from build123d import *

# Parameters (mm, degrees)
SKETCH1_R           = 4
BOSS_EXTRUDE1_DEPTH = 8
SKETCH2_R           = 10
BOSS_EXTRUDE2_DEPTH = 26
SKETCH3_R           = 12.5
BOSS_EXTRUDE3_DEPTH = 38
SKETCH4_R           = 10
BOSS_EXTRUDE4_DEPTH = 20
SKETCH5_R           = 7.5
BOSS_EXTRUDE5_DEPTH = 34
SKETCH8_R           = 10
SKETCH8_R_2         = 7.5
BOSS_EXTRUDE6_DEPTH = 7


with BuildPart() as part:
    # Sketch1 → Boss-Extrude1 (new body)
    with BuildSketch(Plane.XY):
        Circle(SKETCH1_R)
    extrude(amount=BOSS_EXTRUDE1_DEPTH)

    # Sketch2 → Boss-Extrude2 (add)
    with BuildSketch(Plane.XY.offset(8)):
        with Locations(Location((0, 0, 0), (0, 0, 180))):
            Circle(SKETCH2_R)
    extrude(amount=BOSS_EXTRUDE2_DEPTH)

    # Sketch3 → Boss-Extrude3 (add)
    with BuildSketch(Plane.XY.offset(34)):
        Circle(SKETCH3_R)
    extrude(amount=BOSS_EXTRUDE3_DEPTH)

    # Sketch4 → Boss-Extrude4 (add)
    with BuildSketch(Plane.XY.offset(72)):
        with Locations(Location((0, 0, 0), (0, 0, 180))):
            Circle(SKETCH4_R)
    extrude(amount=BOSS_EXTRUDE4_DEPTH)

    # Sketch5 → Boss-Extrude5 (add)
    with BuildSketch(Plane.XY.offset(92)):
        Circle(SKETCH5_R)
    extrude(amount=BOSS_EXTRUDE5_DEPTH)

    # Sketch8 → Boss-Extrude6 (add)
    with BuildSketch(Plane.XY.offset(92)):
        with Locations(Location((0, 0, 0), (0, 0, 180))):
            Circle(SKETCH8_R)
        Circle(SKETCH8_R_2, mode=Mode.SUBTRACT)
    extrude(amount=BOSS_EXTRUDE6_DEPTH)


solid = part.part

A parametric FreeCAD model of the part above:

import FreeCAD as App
import Part
import Sketcher
from FreeCAD import Vector
Q = App.Units.Quantity

doc = App.newDocument("Part")
body = doc.addObject("PartDesign::Body", "Body")

# Sketch on XY plane
sketch1 = body.newObject("Sketcher::SketchObject", "Sketch")
sketch1.AttachmentSupport = (doc.getObject("XY_Plane"), [""])
sketch1.MapMode = "FlatFace"
sketch1.addGeometry(Part.Circle(Vector(0, 0, 0), Vector(0, 0, 1), 4), False)
sketch1.addConstraint([
    Sketcher.Constraint("Coincident", 0, 3, -1, 1),
    Sketcher.Constraint("Diameter", 0, Q("8 mm")),
])
pad1 = body.newObject("PartDesign::Pad", "Pad")
pad1.Profile = sketch1
pad1.Length = 8

# Sketch on XY plane
sketch2 = body.newObject("Sketcher::SketchObject", "Sketch001")
sketch2.AttachmentSupport = (doc.getObject("XY_Plane"), [""])
sketch2.MapMode = "FlatFace"
sketch2.AttachmentOffset = App.Placement(Vector(0, 0, 8), App.Rotation())
sketch2.addGeometry(Part.Circle(Vector(0, 0, 0), Vector(0, 0, 1), 10), False)
sketch2.addConstraint([
    Sketcher.Constraint("Coincident", 0, 3, -1, 1),
    Sketcher.Constraint("Diameter", 0, Q("20 mm")),
])
pad2 = body.newObject("PartDesign::Pad", "Pad001")
pad2.Profile = sketch2
pad2.Length = 26

# Sketch on XY plane
sketch3 = body.newObject("Sketcher::SketchObject", "Sketch002")
sketch3.AttachmentSupport = (doc.getObject("XY_Plane"), [""])
sketch3.MapMode = "FlatFace"
sketch3.AttachmentOffset = App.Placement(Vector(0, 0, 34), App.Rotation())
sketch3.addGeometry(Part.Circle(Vector(0, 0, 0), Vector(0, 0, 1), 12), False)
sketch3.addConstraint([
    Sketcher.Constraint("Coincident", 0, 3, -1, 1),
    Sketcher.Constraint("Diameter", 0, Q("25 mm")),
])
pad3 = body.newObject("PartDesign::Pad", "Pad002")
pad3.Profile = sketch3
pad3.Length = 38

# Sketch on XY plane
sketch4 = body.newObject("Sketcher::SketchObject", "Sketch003")
sketch4.AttachmentSupport = (doc.getObject("XY_Plane"), [""])
sketch4.MapMode = "FlatFace"
sketch4.AttachmentOffset = App.Placement(Vector(0, 0, 72), App.Rotation())
sketch4.addGeometry(Part.Circle(Vector(0, 0, 0), Vector(0, 0, 1), 10), False)
sketch4.addConstraint([
    Sketcher.Constraint("Coincident", 0, 3, -1, 1),
    Sketcher.Constraint("Diameter", 0, Q("20 mm")),
])
pad4 = body.newObject("PartDesign::Pad", "Pad003")
pad4.Profile = sketch4
pad4.Length = 20

# Sketch on XY plane
sketch5 = body.newObject("Sketcher::SketchObject", "Sketch004")
sketch5.AttachmentSupport = (doc.getObject("XY_Plane"), [""])
sketch5.MapMode = "FlatFace"
sketch5.AttachmentOffset = App.Placement(Vector(0, 0, 92), App.Rotation())
sketch5.addGeometry(Part.Circle(Vector(0, 0, 0), Vector(0, 0, 1), 8), False)
sketch5.addConstraint([
    Sketcher.Constraint("Coincident", 0, 3, -1, 1),
    Sketcher.Constraint("Diameter", 0, Q("15 mm")),
])
pad5 = body.newObject("PartDesign::Pad", "Pad004")
pad5.Profile = sketch5
pad5.Length = 34

# Sketch on XY plane
sketch6 = body.newObject("Sketcher::SketchObject", "Sketch005")
sketch6.AttachmentSupport = (doc.getObject("XY_Plane"), [""])
sketch6.MapMode = "FlatFace"
sketch6.AttachmentOffset = App.Placement(Vector(0, 0, 92), App.Rotation())
sketch6.addGeometry([
    Part.Circle(Vector(0, 0, 0), Vector(0, 0, 1), 10),
    Part.Circle(Vector(0, 0, 0), Vector(0, 0, 1), 8),
], False)
sketch6.addConstraint([
    Sketcher.Constraint("Coincident", 0, 3, -1, 1),
    Sketcher.Constraint("Coincident", 1, 3, -1, 1),
    Sketcher.Constraint("Diameter", 0, Q("20 mm")),
    Sketcher.Constraint("Diameter", 1, Q("15 mm")),
])
pad6 = body.newObject("PartDesign::Pad", "Pad005")
pad6.Profile = sketch6
pad6.Length = 7

doc.recompute()
